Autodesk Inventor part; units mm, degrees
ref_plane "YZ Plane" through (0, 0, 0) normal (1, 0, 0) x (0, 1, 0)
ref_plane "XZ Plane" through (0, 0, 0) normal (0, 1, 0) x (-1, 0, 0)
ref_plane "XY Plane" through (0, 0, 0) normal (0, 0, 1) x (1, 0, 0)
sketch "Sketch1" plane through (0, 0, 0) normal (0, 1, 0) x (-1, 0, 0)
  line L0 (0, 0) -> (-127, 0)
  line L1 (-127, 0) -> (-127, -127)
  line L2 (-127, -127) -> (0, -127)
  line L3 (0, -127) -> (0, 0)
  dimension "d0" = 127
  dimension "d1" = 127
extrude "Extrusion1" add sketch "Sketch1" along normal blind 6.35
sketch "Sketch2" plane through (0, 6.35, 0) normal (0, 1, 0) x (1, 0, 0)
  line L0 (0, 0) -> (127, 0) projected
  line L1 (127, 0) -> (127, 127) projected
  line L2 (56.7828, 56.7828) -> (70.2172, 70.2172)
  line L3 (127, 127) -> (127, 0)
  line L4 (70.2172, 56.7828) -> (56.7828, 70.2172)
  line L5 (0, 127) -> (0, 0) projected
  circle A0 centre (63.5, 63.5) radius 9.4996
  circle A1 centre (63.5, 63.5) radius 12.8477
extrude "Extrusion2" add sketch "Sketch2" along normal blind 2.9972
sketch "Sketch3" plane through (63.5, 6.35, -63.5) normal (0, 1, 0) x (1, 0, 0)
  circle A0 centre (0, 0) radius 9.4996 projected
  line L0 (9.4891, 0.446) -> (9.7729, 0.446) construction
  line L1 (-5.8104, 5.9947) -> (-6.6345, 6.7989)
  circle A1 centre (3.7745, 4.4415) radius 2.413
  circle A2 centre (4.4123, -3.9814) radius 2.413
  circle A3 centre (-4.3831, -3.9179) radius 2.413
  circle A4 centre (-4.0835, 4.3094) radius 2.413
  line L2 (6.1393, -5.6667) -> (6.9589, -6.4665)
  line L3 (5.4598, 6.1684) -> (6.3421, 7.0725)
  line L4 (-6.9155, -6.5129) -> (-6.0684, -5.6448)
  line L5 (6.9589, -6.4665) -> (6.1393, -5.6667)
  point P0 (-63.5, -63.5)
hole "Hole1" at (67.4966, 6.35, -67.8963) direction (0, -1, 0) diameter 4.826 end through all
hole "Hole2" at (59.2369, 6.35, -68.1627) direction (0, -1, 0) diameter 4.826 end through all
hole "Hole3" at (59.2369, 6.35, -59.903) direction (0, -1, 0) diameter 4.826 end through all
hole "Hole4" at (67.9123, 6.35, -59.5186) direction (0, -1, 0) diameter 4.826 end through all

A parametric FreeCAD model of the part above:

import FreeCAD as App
import Part
import Sketcher
from FreeCAD import Vector
Q = App.Units.Quantity

doc = App.newDocument("Part")
params = doc.addObject("Spreadsheet::Sheet", "Params")
for row, (alias, value) in enumerate([
    ("sketch1_width", "5 in"),
    ("pad1_length", "0.25 in"),
    ("sketch2_diameter", "0.748 in"),
    ("pad2_length", "0.118 in"),
    ("sketch3_diameter", "0.19 in"),
    ("hole_diameter", "0.19 in"),
    ("sketch4_diameter", "0.19 in"),
    ("hole2_diameter", "0.19 in"),
    ("sketch5_diameter", "0.19 in"),
    ("hole3_diameter", "0.19 in"),
    ("sketch6_diameter", "0.19 in"),
    ("hole4_diameter", "0.19 in"),
], start=1):
    params.set(f"A{row}", alias)
    params.set(f"B{row}", "=" + value)
    params.setAlias(f"B{row}", alias)

body = doc.addObject("PartDesign::Body", "Body")

sketch1 = body.newObject("Sketcher::SketchObject", "Sketch")
sketch1.AttachmentSupport = (doc.getObject("XZ_Plane"), [""])
sketch1.MapMode = "FlatFace"
sketch1.addGeometry([
    Part.LineSegment(Vector(0, -127, 0), Vector(0, 0, 0)),
    Part.LineSegment(Vector(0, 0, 0), Vector(127, 0, 0)),
    Part.LineSegment(Vector(127, 0, 0), Vector(127, -127, 0)),
    Part.LineSegment(Vector(127, -127, 0), Vector(0, -127, 0)),
], False)
sketch1.addConstraint([
    Sketcher.Constraint("Coincident", 0, 2, 1, 1),
    Sketcher.Constraint("Coincident", 1, 2, 2, 1),
    Sketcher.Constraint("Coincident", 2, 2, 3, 1),
    Sketcher.Constraint("Coincident", 3, 2, 0, 1),
    Sketcher.Constraint("Vertical", 0),
    Sketcher.Constraint("Horizontal", 1),
    Sketcher.Constraint("Vertical", 2),
    Sketcher.Constraint("Horizontal", 3),
    Sketcher.Constraint("Coincident", 0, 2, -1, 1),
    Sketcher.Constraint("Equal", 3, 0),
    Sketcher.Constraint("DistanceX", 1, 1, 1, 2, Q("5 in")),
])
sketch1.setExpression("Constraints[10]", "Params.sketch1_width")
pad1 = body.newObject("PartDesign::Pad", "Pad")
pad1.Profile = sketch1
pad1.setExpression("Length", "Params.pad1_length")
pad1.Reversed = True

sketch2 = body.newObject("Sketcher::SketchObject", "Sketch001")
sketch2.AttachmentSupport = (doc.getObject("XZ_Plane"), [""])
sketch2.MapMode = "FlatFace"
sketch2.AttachmentOffset = App.Placement(Vector(0, 0, -0.25 * 25.4), App.Rotation())
sketch2.addGeometry([
    Part.Circle(Vector(63.5, -63.5, 0), Vector(0, 0, 1), 12.8477),
    Part.Circle(Vector(63.5, -63.5, 0), Vector(0, 0, 1), 9.4996),
], False)
sketch2.addConstraint([
    Sketcher.Constraint("Coincident", 1, 3, 0, 3),
    Sketcher.Constraint("Diameter", 1, Q("0.748 in")),
    Sketcher.Constraint("DistanceX", -1, 1, 0, 3, Q("2.5 in")),
    Sketcher.Constraint("DistanceY", 0, 3, -1, 1, Q("2.5 in")),
    Sketcher.Constraint("Diameter", 0, 25.6954),
])
sketch2.setExpression("Constraints[1]", "Params.sketch2_diameter")
pad2 = body.newObject("PartDesign::Pad", "Pad001")
pad2.Profile = sketch2
pad2.setExpression("Length", "Params.pad2_length")
pad2.Reversed = True

sketch3 = body.newObject("Sketcher::SketchObject", "Sketch002")
sketch3.AttachmentSupport = (doc.getObject("XZ_Plane"), [""])
sketch3.MapMode = "FlatFace"
sketch3.AttachmentOffset = App.Placement(Vector(0, 0, -0.25 * 25.4), App.Rotation())
sketch3.addGeometry(Part.Circle(Vector(67.4966, -67.8963, 0), Vector(0, 0, 1), 2.413), False)
sketch3.addConstraint([
    Sketcher.Constraint("Diameter", 0, Q("0.19 in")),
    Sketcher.Constraint("DistanceX", -1, 1, 0, 3, 67.4966),
    Sketcher.Constraint("DistanceY", 0, 3, -1, 1, 67.8963),
])
sketch3.setExpression("Constraints[0]", "Params.sketch3_diameter")
doc.recompute()
hole = body.newObject("PartDesign::Hole", "Hole")
hole.Profile = sketch3
hole.ThreadType = "None"
hole.setExpression("Diameter", "Params.hole_diameter")
hole.DepthType = "ThroughAll"
hole.Reversed = True

sketch4 = body.newObject("Sketcher::SketchObject", "Sketch003")
sketch4.AttachmentSupport = (doc.getObject("XZ_Plane"), [""])
sketch4.MapMode = "FlatFace"
sketch4.AttachmentOffset = App.Placement(Vector(0, 0, -0.25 * 25.4), App.Rotation())
sketch4.addGeometry(Part.Circle(Vector(59.2369, -68.1627, 0), Vector(0, 0, 1), 2.413), False)
sketch4.addConstraint([
    Sketcher.Constraint("Diameter", 0, Q("0.19 in")),
    Sketcher.Constraint("DistanceX", -1, 1, 0, 3, 59.237),
    Sketcher.Constraint("DistanceY", 0, 3, -1, 1, 68.1627),
])
sketch4.setExpression("Constraints[0]", "Params.sketch4_diameter")
doc.recompute()
hole2 = body.newObject("PartDesign::Hole", "Hole001")
hole2.Profile = sketch4
hole2.ThreadType = "None"
hole2.setExpression("Diameter", "Params.hole2_diameter")
hole2.DepthType = "ThroughAll"
hole2.Reversed = True

sketch5 = body.newObject("Sketcher::SketchObject", "Sketch004")
sketch5.AttachmentSupport = (doc.getObject("XZ_Plane"), [""])
sketch5.MapMode = "FlatFace"
sketch5.AttachmentOffset = App.Placement(Vector(0, 0, -0.25 * 25.4), App.Rotation())
sketch5.addGeometry(Part.Circle(Vector(59.2369, -59.903, 0), Vector(0, 0, 1), 2.413), False)
sketch5.addConstraint([
    Sketcher.Constraint("Diameter", 0, Q("0.19 in")),
    Sketcher.Constraint("DistanceX", -1, 1, 0, 3, 59.237),
    Sketcher.Constraint("DistanceY", 0, 3, -1, 1, 59.903),
])
sketch5.setExpression("Constraints[0]", "Params.sketch5_diameter")
doc.recompute()
hole3 = body.newObject("PartDesign::Hole", "Hole002")
hole3.Profile = sketch5
hole3.ThreadType = "None"
hole3.setExpression("Diameter", "Params.hole3_diameter")
hole3.DepthType = "ThroughAll"
hole3.Reversed = True

sketch6 = body.newObject("Sketcher::SketchObject", "Sketch005")
sketch6.AttachmentSupport = (doc.getObject("XZ_Plane"), [""])
sketch6.MapMode = "FlatFace"
sketch6.AttachmentOffset = App.Placement(Vector(0, 0, -0.25 * 25.4), App.Rotation())
sketch6.addGeometry(Part.Circle(Vector(67.9123, -59.5186, 0), Vector(0, 0, 1), 2.413), False)
sketch6.addConstraint([
    Sketcher.Constraint("Diameter", 0, Q("0.19 in")),
    Sketcher.Constraint("DistanceX", -1, 1, 0, 3, 67.9123),
    Sketcher.Constraint("DistanceY", 0, 3, -1, 1, 59.5186),
])
sketch6.setExpression("Constraints[0]", "Params.sketch6_diameter")
doc.recompute()
hole4 = body.newObject("PartDesign::Hole", "Hole003")
hole4.Profile = sketch6
hole4.ThreadType = "None"
hole4.setExpression("Diameter", "Params.hole4_diameter")
hole4.DepthType = "ThroughAll"
hole4.Reversed = True

doc.recompute()
